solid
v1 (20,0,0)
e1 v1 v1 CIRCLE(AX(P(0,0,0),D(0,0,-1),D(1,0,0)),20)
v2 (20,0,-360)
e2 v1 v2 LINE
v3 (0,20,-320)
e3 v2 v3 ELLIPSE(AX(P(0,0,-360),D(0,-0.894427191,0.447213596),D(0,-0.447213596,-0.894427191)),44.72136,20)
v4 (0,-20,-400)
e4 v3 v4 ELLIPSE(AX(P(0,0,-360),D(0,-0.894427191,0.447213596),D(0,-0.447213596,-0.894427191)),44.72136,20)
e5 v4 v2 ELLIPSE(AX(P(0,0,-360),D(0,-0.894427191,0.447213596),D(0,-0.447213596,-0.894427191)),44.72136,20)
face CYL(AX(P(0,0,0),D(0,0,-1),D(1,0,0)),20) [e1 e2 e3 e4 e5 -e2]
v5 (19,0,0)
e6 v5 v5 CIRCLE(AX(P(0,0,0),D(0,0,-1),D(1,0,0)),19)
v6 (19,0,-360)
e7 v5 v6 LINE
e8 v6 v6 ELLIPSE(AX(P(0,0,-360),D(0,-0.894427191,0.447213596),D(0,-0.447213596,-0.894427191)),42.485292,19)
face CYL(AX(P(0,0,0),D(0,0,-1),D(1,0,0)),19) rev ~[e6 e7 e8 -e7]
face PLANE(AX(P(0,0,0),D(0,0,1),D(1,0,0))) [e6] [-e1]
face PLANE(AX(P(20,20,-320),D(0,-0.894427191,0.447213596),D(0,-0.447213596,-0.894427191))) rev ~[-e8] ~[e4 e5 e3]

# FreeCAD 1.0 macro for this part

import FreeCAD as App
import Part
import Sketcher
from FreeCAD import Vector


def add_polygon(sketch, points):
    """Adds a closed chain of lines whose ends are joined by coincident constraints."""
    first, n = sketch.GeometryCount, len(points)
    for a, b in zip(points, points[1:] + points[:1]):
        sketch.addGeometry(Part.LineSegment(App.Vector(*a, 0), App.Vector(*b, 0)), False)
    for i in range(n):
        sketch.addConstraint(Sketcher.Constraint("Coincident", first + i, 2, first + (i + 1) % n, 1))

doc = App.newDocument("Part")
body = doc.addObject("PartDesign::Body", "Body")

# Sketch on XY plane
sketch1 = body.newObject("Sketcher::SketchObject", "Sketch")
sketch1.AttachmentSupport = (doc.getObject("XY_Plane"), [""])
sketch1.MapMode = "FlatFace"
sketch1.addGeometry([
    Part.Circle(Vector(0, 0, 0), Vector(0, 0, 1), 20),
    Part.Circle(Vector(0, 0, 0), Vector(0, 0, 1), 19),
], False)
sketch1.addConstraint([
    Sketcher.Constraint("Coincident", 0, 3, -1, 1),
    Sketcher.Constraint("Coincident", 1, 3, -1, 1),
    Sketcher.Constraint("Diameter", 0, 40.0),
    Sketcher.Constraint("Diameter", 1, 38.0),
])

# Sketch on XZ plane
sketch2 = body.newObject("Sketcher::SketchObject", "Sketch001")
sketch2.AttachmentSupport = (doc.getObject("XZ_Plane"), [""])
sketch2.MapMode = "FlatFace"
sketch2.addGeometry(Part.LineSegment(Vector(0, 0, 0), Vector(0, -400, 0)), False)
sketch2.addConstraint([
    Sketcher.Constraint("Vertical", 0),
    Sketcher.Constraint("Coincident", 0, 1, -1, 1),
    Sketcher.Constraint("DistanceY", 0, 2, 0, 1, 400.0),
])
doc.recompute()

additivepipe = body.newObject("PartDesign::AdditivePipe", "AdditivePipe")
additivepipe.Profile = sketch1
additivepipe.Spine = (sketch2, ["Edge1"])

# Sketch on YZ plane
sketch3 = body.newObject("Sketcher::SketchObject", "Sketch002")
sketch3.AttachmentSupport = (doc.getObject("YZ_Plane"), [""])
sketch3.MapMode = "FlatFace"
sketch3.AttachmentOffset = App.Placement(Vector(0, 0, 20), App.Rotation())
add_polygon(sketch3, [(20, -400), (20, -320), (-20, -400)])  # lines 0-2
sketch3.addConstraint([
    Sketcher.Constraint("Vertical", 0),
    Sketcher.Constraint("Horizontal", 2),
    Sketcher.Constraint("DistanceX", 2, 1, 2, 2, 40.0),
    Sketcher.Constraint("DistanceY", 0, 1, 0, 2, 80.0),
    Sketcher.Constraint("DistanceX", -1, 1, 0, 2, 20.0),
    Sketcher.Constraint("DistanceY", 0, 2, -1, 1, 320.0),
])
pocket1 = body.newObject("PartDesign::Pocket", "Pocket")
pocket1.Profile = sketch3
pocket1.Type = "ThroughAll"

doc.recompute()
